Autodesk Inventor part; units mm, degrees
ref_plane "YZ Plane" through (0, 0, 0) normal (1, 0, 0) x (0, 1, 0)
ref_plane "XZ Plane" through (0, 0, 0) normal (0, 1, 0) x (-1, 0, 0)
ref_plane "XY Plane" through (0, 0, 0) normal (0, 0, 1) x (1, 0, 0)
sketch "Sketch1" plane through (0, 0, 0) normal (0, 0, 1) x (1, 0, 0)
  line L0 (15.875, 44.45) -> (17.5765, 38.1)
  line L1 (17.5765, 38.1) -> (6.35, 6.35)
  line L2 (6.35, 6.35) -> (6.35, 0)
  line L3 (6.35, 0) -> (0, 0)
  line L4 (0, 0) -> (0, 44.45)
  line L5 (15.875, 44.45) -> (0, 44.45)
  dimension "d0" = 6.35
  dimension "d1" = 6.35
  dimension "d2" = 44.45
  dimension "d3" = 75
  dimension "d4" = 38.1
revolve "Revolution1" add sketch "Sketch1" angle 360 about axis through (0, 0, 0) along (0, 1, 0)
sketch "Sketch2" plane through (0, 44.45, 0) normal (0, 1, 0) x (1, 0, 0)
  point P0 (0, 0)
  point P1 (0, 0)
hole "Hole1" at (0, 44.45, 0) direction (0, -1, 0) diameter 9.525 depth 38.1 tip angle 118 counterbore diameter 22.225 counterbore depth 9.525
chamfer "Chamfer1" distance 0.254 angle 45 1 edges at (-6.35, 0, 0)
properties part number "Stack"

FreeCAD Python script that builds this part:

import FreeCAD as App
import Part
import Sketcher

V = App.Vector
Q = App.Units.Quantity


def edges_at(feature, points):
    """Names of the edges that pass closest to the given points."""
    edges = feature.Shape.Edges
    near = lambda p: min(range(len(edges)), key=lambda i: edges[i].distToShape(Part.Vertex(*p))[0])
    return sorted({f"Edge{near(p) + 1}" for p in points})


def add_polygon(sketch, points):
    """Adds a closed chain of lines whose ends are joined by coincident constraints."""
    first, n = sketch.GeometryCount, len(points)
    for a, b in zip(points, points[1:] + points[:1]):
        sketch.addGeometry(Part.LineSegment(App.Vector(*a, 0), App.Vector(*b, 0)), False)
    for i in range(n):
        sketch.addConstraint(Sketcher.Constraint("Coincident", first + i, 2, first + (i + 1) % n, 1))

doc = App.newDocument("Part")
body = doc.addObject("PartDesign::Body", "Body")

# Sketch on XY plane
sketch1 = doc.addObject("Sketcher::SketchObject", "Sketch")
body.addObject(sketch1)
sketch1.AttachmentSupport = (doc.XY_Plane, [""])
sketch1.MapMode = "FlatFace"
add_polygon(sketch1, [(18, 38), (16, 44), (0, 44), (0, 0), (6, 0), (6, 6)])  # lines 0-5
sketch1.addConstraint([
    Sketcher.Constraint("Horizontal", 1),
    Sketcher.Constraint("Vertical", 2),
    Sketcher.Constraint("Horizontal", 3),
    Sketcher.Constraint("Vertical", 4),
    Sketcher.Constraint("Coincident", 2, 2, -1, 1),
    Sketcher.Constraint("Equal", 3, 4),
    Sketcher.Constraint("DistanceX", 3, 1, 3, 2, Q("0.25 in")),
    Sketcher.Constraint("DistanceY", 2, 2, 2, 1, Q("1.75 in")),
    Sketcher.Constraint("DistanceY", -1, 1, 5, 2, Q("1.5 in")),
    Sketcher.Constraint("Angle", 0, Q("105.0002 deg")),
    Sketcher.Constraint("DistanceX", 1, 2, 1, 1, Q("0.625 in")),
])
revolution = doc.addObject("PartDesign::Revolution", "Revolution")
body.addObject(revolution)
revolution.Profile = sketch1
revolution.ReferenceAxis = (sketch1, ["V_Axis"])
revolution.Angle = 360

# Sketch on XZ plane
sketch2 = doc.addObject("Sketcher::SketchObject", "Sketch001")
body.addObject(sketch2)
sketch2.AttachmentSupport = (doc.XZ_Plane, [""])
sketch2.MapMode = "FlatFace"
sketch2.AttachmentOffset = App.Placement(V(0, 0, -1.75 * 25.4), App.Rotation())
sketch2.addGeometry(Part.Circle(V(0, 0, 0), V(0, 0, 1), 4.8), False)
sketch2.addConstraint([
    Sketcher.Constraint("Coincident", 0, 3, -1, 1),
    Sketcher.Constraint("Diameter", 0, Q("0.375 in")),
])
doc.recompute()
hole = doc.addObject("PartDesign::Hole", "Hole")
body.addObject(hole)
hole.Profile = sketch2
hole.ThreadType = "None"
hole.Diameter = Q("0.375 in")
hole.DepthType = "Dimension"
hole.Depth = Q("1.5 in")
hole.DrillPoint = "Angled"
hole.DrillPointAngle = 118
hole.HoleCutType = "Counterbore"
hole.HoleCutDiameter = Q("0.875 in")
hole.HoleCutDepth = Q("0.375 in")
hole.Reversed = True
doc.recompute()

chamfer = doc.addObject("PartDesign::Chamfer", "Chamfer")
body.addObject(chamfer)
chamfer.Base = (hole, edges_at(hole, [(-6.35, 0, 0)]))
chamfer.Size = Q("0.01 in")

doc.recompute()
